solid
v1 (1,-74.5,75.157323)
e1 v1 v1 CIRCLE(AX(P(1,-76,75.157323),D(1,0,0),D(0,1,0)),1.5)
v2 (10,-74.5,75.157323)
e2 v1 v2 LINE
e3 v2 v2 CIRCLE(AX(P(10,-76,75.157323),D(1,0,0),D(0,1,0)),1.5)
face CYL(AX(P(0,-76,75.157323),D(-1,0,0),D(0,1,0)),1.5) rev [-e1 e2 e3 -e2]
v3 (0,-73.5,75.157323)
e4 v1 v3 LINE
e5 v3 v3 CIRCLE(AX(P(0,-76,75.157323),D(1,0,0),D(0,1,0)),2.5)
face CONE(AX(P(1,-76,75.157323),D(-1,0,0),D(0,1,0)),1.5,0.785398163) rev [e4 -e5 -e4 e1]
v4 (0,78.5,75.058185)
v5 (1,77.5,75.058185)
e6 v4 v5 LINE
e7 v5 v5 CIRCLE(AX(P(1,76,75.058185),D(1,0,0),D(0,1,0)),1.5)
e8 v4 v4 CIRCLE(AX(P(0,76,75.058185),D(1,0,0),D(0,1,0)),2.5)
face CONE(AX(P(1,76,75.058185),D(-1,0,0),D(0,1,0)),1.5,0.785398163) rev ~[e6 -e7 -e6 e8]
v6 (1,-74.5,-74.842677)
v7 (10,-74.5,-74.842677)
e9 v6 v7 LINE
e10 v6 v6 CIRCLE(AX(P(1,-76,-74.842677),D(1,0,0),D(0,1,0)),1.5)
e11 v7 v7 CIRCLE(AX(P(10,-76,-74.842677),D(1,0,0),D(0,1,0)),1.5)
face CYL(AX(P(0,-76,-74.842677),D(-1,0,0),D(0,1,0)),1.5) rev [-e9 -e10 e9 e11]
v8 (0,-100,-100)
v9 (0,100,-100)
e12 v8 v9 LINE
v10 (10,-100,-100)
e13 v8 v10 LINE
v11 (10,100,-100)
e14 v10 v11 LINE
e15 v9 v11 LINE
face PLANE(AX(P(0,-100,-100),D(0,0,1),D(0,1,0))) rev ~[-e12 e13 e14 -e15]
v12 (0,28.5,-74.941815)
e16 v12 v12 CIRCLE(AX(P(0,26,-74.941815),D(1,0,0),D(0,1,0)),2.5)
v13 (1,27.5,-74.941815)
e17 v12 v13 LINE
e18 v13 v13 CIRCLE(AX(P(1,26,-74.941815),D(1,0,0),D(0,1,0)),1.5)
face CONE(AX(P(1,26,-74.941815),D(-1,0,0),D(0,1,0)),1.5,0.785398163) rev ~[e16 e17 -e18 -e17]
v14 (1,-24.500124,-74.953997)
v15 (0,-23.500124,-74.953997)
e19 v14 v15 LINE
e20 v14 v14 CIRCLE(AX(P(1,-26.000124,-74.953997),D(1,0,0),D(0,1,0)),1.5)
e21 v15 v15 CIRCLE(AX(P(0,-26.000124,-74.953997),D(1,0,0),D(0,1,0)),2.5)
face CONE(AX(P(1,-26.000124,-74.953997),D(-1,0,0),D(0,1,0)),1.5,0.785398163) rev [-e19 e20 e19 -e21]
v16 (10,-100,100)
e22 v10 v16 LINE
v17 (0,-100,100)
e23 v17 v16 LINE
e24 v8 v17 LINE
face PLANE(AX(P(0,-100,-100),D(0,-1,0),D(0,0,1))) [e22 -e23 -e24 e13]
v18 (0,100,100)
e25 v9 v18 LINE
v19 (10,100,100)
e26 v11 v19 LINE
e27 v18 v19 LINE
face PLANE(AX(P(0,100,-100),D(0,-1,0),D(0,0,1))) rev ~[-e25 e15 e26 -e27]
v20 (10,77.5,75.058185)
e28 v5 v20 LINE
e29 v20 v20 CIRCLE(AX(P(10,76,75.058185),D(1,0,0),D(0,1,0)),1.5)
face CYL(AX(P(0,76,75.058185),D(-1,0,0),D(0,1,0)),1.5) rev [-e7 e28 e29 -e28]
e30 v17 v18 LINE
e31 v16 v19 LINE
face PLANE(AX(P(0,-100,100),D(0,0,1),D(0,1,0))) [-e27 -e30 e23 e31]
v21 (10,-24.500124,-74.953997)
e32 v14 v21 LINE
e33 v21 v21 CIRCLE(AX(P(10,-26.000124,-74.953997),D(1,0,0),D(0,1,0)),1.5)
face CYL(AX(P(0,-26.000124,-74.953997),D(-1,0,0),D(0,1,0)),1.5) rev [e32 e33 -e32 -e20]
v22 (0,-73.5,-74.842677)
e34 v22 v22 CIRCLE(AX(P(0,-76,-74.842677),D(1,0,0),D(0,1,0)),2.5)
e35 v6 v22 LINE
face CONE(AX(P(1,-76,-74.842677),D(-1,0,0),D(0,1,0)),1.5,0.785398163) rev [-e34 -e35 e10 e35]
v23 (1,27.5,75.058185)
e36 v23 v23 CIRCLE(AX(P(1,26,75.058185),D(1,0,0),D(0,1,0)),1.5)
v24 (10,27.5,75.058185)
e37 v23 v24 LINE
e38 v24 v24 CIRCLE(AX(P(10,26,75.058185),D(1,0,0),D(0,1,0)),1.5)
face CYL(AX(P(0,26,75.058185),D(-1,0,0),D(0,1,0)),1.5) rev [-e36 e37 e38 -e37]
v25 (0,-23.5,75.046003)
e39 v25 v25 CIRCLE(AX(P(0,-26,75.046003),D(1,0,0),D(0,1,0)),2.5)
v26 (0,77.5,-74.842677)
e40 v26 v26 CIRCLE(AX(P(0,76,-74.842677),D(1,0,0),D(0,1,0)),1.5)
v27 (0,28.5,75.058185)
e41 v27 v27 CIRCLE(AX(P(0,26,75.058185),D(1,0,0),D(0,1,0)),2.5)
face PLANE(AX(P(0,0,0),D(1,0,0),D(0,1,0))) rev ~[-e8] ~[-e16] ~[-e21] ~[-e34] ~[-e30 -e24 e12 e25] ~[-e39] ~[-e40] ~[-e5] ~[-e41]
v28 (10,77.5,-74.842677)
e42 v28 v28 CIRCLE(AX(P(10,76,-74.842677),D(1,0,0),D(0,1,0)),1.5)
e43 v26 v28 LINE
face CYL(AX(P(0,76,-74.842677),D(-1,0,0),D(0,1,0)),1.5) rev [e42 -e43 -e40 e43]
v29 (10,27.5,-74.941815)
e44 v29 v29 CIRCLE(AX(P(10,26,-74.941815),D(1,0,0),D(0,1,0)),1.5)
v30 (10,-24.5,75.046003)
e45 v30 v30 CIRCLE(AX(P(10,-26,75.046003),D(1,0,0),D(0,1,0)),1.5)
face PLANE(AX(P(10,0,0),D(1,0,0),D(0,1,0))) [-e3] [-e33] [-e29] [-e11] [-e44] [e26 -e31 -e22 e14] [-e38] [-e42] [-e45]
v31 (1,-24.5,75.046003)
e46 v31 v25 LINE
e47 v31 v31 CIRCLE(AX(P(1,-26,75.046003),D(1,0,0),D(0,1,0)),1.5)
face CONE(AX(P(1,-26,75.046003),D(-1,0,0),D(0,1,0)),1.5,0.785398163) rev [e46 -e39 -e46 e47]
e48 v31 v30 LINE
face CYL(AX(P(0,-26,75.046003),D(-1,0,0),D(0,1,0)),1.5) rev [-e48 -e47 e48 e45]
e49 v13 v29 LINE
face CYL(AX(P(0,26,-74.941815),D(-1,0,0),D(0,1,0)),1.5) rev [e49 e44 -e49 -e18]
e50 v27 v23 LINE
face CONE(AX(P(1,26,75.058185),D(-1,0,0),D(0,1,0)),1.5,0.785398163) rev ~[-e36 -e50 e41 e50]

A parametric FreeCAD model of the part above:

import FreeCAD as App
import Part
import Sketcher


def edges_at(feature, points):
    """Names of the edges that pass closest to the given points."""
    edges = feature.Shape.Edges
    near = lambda p: min(range(len(edges)), key=lambda i: edges[i].distToShape(Part.Vertex(*p))[0])
    return sorted({f"Edge{near(p) + 1}" for p in points})

doc = App.newDocument("Part")
body = doc.addObject("PartDesign::Body", "Body")

# Sketch on YZ plane
sketch1 = doc.addObject("Sketcher::SketchObject", "Sketch")
body.addObject(sketch1)
sketch1.AttachmentSupport = (doc.YZ_Plane, [""])
sketch1.MapMode = "FlatFace"
sketch1.addGeometry(Part.LineSegment(App.Vector(-100, 100, 0), App.Vector(-100, -100, 0)), False)
sketch1.addGeometry(Part.LineSegment(App.Vector(-100, -100, 0), App.Vector(100, -100, 0)), False)
sketch1.addGeometry(Part.LineSegment(App.Vector(100, -100, 0), App.Vector(100, 100, 0)), False)
sketch1.addGeometry(Part.LineSegment(App.Vector(100, 100, 0), App.Vector(-100, 100, 0)), False)
sketch1.addGeometry(Part.Circle(App.Vector(-76, -74.842677, 0), App.Vector(0, 0, 1), 1.5), False)
sketch1.addGeometry(Part.Circle(App.Vector(-26.000124, -74.953997, 0), App.Vector(0, 0, 1), 1.5), False)
sketch1.addGeometry(Part.Circle(App.Vector(26, -74.941815, 0), App.Vector(0, 0, 1), 1.5), False)
sketch1.addGeometry(Part.Circle(App.Vector(76, -74.842677, 0), App.Vector(0, 0, 1), 1.5), False)
sketch1.addGeometry(Part.Circle(App.Vector(-76, 75.157323, 0), App.Vector(0, 0, 1), 1.5), False)
sketch1.addGeometry(Part.Circle(App.Vector(-26, 75.046003, 0), App.Vector(0, 0, 1), 1.5), False)
sketch1.addGeometry(Part.Circle(App.Vector(26, 75.058185, 0), App.Vector(0, 0, 1), 1.5), False)
sketch1.addGeometry(Part.Circle(App.Vector(76, 75.058185, 0), App.Vector(0, 0, 1), 1.5), False)
sketch1.addConstraint(Sketcher.Constraint("Coincident", 0, 2, 1, 1))
sketch1.addConstraint(Sketcher.Constraint("Coincident", 1, 2, 2, 1))
sketch1.addConstraint(Sketcher.Constraint("Coincident", 2, 2, 3, 1))
sketch1.addConstraint(Sketcher.Constraint("Coincident", 3, 2, 0, 1))
sketch1.addConstraint(Sketcher.Constraint("Vertical", 0))
sketch1.addConstraint(Sketcher.Constraint("Horizontal", 1))
sketch1.addConstraint(Sketcher.Constraint("Vertical", 2))
sketch1.addConstraint(Sketcher.Constraint("Horizontal", 3))
sketch1.addConstraint(Sketcher.Constraint("Equal", 4, 5))
sketch1.addConstraint(Sketcher.Constraint("Equal", 5, 6))
sketch1.addConstraint(Sketcher.Constraint("Equal", 6, 7))
sketch1.addConstraint(Sketcher.Constraint("Equal", 7, 8))
sketch1.addConstraint(Sketcher.Constraint("Equal", 8, 9))
sketch1.addConstraint(Sketcher.Constraint("Equal", 9, 10))
sketch1.addConstraint(Sketcher.Constraint("Equal", 10, 11))
sketch1.addConstraint(Sketcher.Constraint("Symmetric", 0, 2, 2, 2, -1, 1))
sketch1.addConstraint(Sketcher.Constraint("Symmetric", 4, 3, 7, 3, -2))
sketch1.addConstraint(Sketcher.Constraint("Horizontal", 10, 3, 11, 3))
sketch1.addConstraint(Sketcher.Constraint("Vertical", 4, 3, 8, 3))
sketch1.addConstraint(Sketcher.Constraint("Vertical", 6, 3, 10, 3))
sketch1.addConstraint(Sketcher.Constraint("Vertical", 7, 3, 11, 3))
sketch1.addConstraint(Sketcher.Constraint("Equal", 3, 0))
sketch1.addConstraint(Sketcher.Constraint("Diameter", 4, 3.0))
sketch1.addConstraint(Sketcher.Constraint("DistanceX", 1, 1, 1, 2, 200.0))
sketch1.addConstraint(Sketcher.Constraint("DistanceX", 4, 3, -1, 1, 76.0))
sketch1.addConstraint(Sketcher.Constraint("DistanceX", -1, 1, 6, 3, 26.0))
sketch1.addConstraint(Sketcher.Constraint("DistanceX", 9, 3, -1, 1, 26.0))
sketch1.addConstraint(Sketcher.Constraint("DistanceY", 4, 3, 8, 3, 150.0))
sketch1.addConstraint(Sketcher.Constraint("DistanceY", 5, 3, 9, 3, 150.0))
sketch1.addConstraint(Sketcher.Constraint("DistanceY", 6, 3, 10, 3, 150.0))
sketch1.addConstraint(Sketcher.Constraint("DistanceY", 5, 3, 4, 3, 0.11132))
sketch1.addConstraint(Sketcher.Constraint("DistanceY", 5, 3, 6, 3, 0.012182))
sketch1.addConstraint(Sketcher.Constraint("DistanceY", 4, 3, -1, 1, 74.842677))
sketch1.addConstraint(Sketcher.Constraint("DistanceX", 5, 3, -1, 1, 26.000124))
pad1 = doc.addObject("PartDesign::Pad", "Pad")
body.addObject(pad1)
pad1.Profile = sketch1
pad1.Length = 10
doc.recompute()

chamfer = doc.addObject("PartDesign::Chamfer", "Chamfer")
body.addObject(chamfer)
chamfer.Base = (pad1, edges_at(pad1, [
    (0, -77.5, -74.843),
    (0, -27.5, -74.954),
    (0, -27.5, 75.046),
    (0, -77.5, 75.157),
]))
chamfer.Size = 1
doc.recompute()

chamfer2 = doc.addObject("PartDesign::Chamfer", "Chamfer001")
body.addObject(chamfer2)
chamfer2.Base = (chamfer, edges_at(chamfer, [(0, 24.5, -74.942), (0, 24.5, 75.058), (0, 74.5, 75.058)]))
chamfer2.Size = 1

doc.recompute()
